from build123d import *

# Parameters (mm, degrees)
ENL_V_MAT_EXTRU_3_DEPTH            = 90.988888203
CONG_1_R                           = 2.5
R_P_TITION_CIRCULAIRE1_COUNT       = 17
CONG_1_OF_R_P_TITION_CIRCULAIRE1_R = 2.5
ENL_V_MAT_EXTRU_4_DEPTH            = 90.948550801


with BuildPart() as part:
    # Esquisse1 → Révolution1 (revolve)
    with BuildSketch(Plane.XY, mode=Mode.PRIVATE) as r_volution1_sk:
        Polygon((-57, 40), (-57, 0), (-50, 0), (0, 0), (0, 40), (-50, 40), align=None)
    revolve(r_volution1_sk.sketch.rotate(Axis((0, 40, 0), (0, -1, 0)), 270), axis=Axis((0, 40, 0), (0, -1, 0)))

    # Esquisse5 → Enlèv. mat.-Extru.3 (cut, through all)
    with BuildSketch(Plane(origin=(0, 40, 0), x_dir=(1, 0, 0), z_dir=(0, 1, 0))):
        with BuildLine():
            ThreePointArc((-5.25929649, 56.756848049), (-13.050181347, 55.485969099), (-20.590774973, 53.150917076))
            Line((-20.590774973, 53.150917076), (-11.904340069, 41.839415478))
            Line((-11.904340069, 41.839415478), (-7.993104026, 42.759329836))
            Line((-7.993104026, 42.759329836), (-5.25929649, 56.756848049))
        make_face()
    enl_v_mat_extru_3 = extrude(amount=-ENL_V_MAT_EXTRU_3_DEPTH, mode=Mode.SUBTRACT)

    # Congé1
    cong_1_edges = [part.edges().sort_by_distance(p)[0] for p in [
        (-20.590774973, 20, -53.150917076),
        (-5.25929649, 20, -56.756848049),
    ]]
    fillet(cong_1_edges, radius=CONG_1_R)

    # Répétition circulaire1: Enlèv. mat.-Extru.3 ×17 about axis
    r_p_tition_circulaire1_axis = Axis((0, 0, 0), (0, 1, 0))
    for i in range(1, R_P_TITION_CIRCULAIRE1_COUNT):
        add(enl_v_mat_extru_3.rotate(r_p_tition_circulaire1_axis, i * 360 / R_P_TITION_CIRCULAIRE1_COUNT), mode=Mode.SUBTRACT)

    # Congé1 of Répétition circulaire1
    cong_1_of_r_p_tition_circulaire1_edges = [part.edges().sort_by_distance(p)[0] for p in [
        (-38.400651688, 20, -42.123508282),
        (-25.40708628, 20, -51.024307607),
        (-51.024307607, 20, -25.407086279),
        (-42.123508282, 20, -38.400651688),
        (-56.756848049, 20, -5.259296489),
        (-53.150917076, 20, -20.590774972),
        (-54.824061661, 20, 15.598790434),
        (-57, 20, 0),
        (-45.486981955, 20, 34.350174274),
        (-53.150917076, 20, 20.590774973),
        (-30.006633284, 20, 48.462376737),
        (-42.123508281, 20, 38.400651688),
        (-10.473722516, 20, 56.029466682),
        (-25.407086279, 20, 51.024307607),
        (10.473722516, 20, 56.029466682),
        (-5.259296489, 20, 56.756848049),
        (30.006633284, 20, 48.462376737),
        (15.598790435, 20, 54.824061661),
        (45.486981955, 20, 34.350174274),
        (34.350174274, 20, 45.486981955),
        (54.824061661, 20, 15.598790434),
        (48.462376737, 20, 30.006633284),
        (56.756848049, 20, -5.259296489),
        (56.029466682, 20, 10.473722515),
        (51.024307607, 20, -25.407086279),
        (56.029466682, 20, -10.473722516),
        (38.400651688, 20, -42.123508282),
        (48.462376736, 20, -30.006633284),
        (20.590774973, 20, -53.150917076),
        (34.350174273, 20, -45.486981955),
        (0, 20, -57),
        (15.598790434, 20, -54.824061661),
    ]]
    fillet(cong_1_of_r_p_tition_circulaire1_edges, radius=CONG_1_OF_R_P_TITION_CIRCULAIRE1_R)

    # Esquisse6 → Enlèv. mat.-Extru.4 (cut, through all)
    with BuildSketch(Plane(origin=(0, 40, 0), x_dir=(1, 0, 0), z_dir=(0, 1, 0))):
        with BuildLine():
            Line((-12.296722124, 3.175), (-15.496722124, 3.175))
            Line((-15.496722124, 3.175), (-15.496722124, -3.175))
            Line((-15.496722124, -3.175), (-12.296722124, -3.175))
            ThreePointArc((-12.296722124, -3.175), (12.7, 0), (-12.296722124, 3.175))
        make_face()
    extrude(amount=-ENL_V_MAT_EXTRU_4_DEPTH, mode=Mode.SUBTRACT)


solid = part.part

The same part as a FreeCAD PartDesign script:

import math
import FreeCAD as App
import Part
import Sketcher

V = App.Vector


def edges_at(feature, points):
    """Names of the edges that pass closest to the given points."""
    edges = feature.Shape.Edges
    near = lambda p: min(range(len(edges)), key=lambda i: edges[i].distToShape(Part.Vertex(*p))[0])
    return sorted({f"Edge{near(p) + 1}" for p in points})


def add_polygon(sketch, points):
    """Adds a closed chain of lines whose ends are joined by coincident constraints."""
    first, n = sketch.GeometryCount, len(points)
    for a, b in zip(points, points[1:] + points[:1]):
        sketch.addGeometry(Part.LineSegment(App.Vector(*a, 0), App.Vector(*b, 0)), False)
    for i in range(n):
        sketch.addConstraint(Sketcher.Constraint("Coincident", first + i, 2, first + (i + 1) % n, 1))

doc = App.newDocument("Part")
params = doc.addObject("Spreadsheet::Sheet", "Params")
for row, (alias, value) in enumerate([
    ("sketch1_width", "57 mm"),
    ("sketch1_height", "40 mm"),
    ("revolution_angle", "360 deg"),
    ("sketch2_radius", "57 mm"),
    ("fillet_radius", "2.5 mm"),
    ("fillet2_radius", "2.5 mm"),
    ("sketch3_radius", "12.7 mm"),
    ("sketch3_width", "3.2 mm"),
    ("sketch3_height", "6.35 mm"),
], start=1):
    params.set(f"A{row}", alias)
    params.set(f"B{row}", "=" + value)
    params.setAlias(f"B{row}", alias)

body = doc.addObject("PartDesign::Body", "Body")

# Sketch on XY plane
sketch1 = body.newObject("Sketcher::SketchObject", "Sketch")
sketch1.AttachmentSupport = (doc.getObject("XY_Plane"), [""])
sketch1.MapMode = "FlatFace"
add_polygon(sketch1, [(-57, 40), (-57, 0), (0, 0), (0, 40)])  # lines 0-3
sketch1.addConstraint(Sketcher.Constraint("Vertical", 0))
sketch1.addConstraint(Sketcher.Constraint("Horizontal", 1))
sketch1.addConstraint(Sketcher.Constraint("Vertical", 2))
sketch1.addConstraint(Sketcher.Constraint("Horizontal", 3))
sketch1.addConstraint(Sketcher.Constraint("Coincident", 1, 2, -1, 1))
sketch1.addConstraint(Sketcher.Constraint("DistanceX", 1, 1, 1, 2, 57.0))
sketch1.addConstraint(Sketcher.Constraint("DistanceY", 0, 2, 0, 1, 40.0))
sketch1.setExpression("Constraints[9]", "Params.sketch1_width")
sketch1.setExpression("Constraints[10]", "Params.sketch1_height")
revolution = body.newObject("PartDesign::Revolution", "Revolution")
revolution.Profile = sketch1
revolution.ReferenceAxis = (sketch1, ["V_Axis"])
revolution.setExpression("Angle", "Params.revolution_angle")

# Sketch on XZ plane
sketch2 = body.newObject("Sketcher::SketchObject", "Sketch001")
sketch2.AttachmentSupport = (doc.getObject("XZ_Plane"), [""])
sketch2.MapMode = "FlatFace"
sketch2.AttachmentOffset = App.Placement(V(0, 0, -40), App.Rotation())
sketch2.addGeometry(Part.ArcOfCircle(Part.Circle(V(0, 0, 0), V(0, 0, 1), 57), math.radians(-111.18), math.radians(-95.29)), False)
sketch2.addGeometry(Part.LineSegment(V(-20.6, -53.2, 0), V(-11.9, -41.8, 0)), False)
sketch2.addGeometry(Part.LineSegment(V(-11.9, -41.8, 0), V(-8, -42.8, 0)), False)
sketch2.addGeometry(Part.LineSegment(V(-8, -42.8, 0), V(-5.3, -56.8, 0)), False)
sketch2.addConstraint(Sketcher.Constraint("Coincident", 0, 1, 1, 1))
sketch2.addConstraint(Sketcher.Constraint("Coincident", 1, 2, 2, 1))
sketch2.addConstraint(Sketcher.Constraint("Coincident", 2, 2, 3, 1))
sketch2.addConstraint(Sketcher.Constraint("Coincident", 3, 2, 0, 2))
sketch2.addConstraint(Sketcher.Constraint("Coincident", 0, 3, -1, 1))
sketch2.addConstraint(Sketcher.Constraint("Equal", 1, 3))
sketch2.addConstraint(Sketcher.Constraint("Radius", 0, 57.0))
sketch2.addConstraint(Sketcher.Constraint("DistanceY", 0, 1, 1, 2, 11.311502))
sketch2.addConstraint(Sketcher.Constraint("Distance", 2, 4.017961))
sketch2.addConstraint(Sketcher.Constraint("DistanceX", 1, 2, -1, 1, 11.90434))
sketch2.addConstraint(Sketcher.Constraint("DistanceY", 2, 2, -1, 1, 42.75933))
sketch2.addConstraint(Sketcher.Constraint("DistanceY", 3, 2, -1, 1, 56.756848))
sketch2.setExpression("Constraints[6]", "Params.sketch2_radius")
pocket1 = body.newObject("PartDesign::Pocket", "Pocket")
pocket1.Profile = sketch2
pocket1.Type = "ThroughAll"
pocket1.Reversed = True
doc.recompute()

fillet = body.newObject("PartDesign::Fillet", "Fillet")
fillet.Base = (pocket1, edges_at(pocket1, [(-20.591, 20, -53.151), (-5.259, 20, -56.757)]))
fillet.setExpression("Radius", "Params.fillet_radius")
doc.recompute()

polarpattern = body.newObject("PartDesign::PolarPattern", "PolarPattern")
polarpattern.Originals = [pocket1]
polarpattern.Axis = (doc.getObject("Y_Axis"), [""])
polarpattern.Angle = 360
polarpattern.Occurrences = 17
body.Tip = polarpattern
doc.recompute()

fillet2 = body.newObject("PartDesign::Fillet", "Fillet001")
fillet2.Base = (polarpattern, edges_at(polarpattern, [
    (-38.401, 20, -42.124),
    (-25.407, 20, -51.024),
    (-51.024, 20, -25.407),
    (-42.124, 20, -38.401),
    (-56.757, 20, -5.259),
    (-53.151, 20, -20.591),
    (-54.824, 20, 15.599),
    (-57, 20, 0),
    (-45.487, 20, 34.35),
    (-53.151, 20, 20.591),
    (-30.007, 20, 48.462),
    (-42.124, 20, 38.401),
    (-10.474, 20, 56.029),
    (-25.407, 20, 51.024),
    (10.474, 20, 56.029),
    (-5.259, 20, 56.757),
    (30.007, 20, 48.462),
    (15.599, 20, 54.824),
    (45.487, 20, 34.35),
    (34.35, 20, 45.487),
    (54.824, 20, 15.599),
    (48.462, 20, 30.007),
    (56.757, 20, -5.259),
    (56.029, 20, 10.474),
    (51.024, 20, -25.407),
    (56.029, 20, -10.474),
    (38.401, 20, -42.124),
    (48.462, 20, -30.007),
    (20.591, 20, -53.151),
    (34.35, 20, -45.487),
    (0, 20, -57),
    (15.599, 20, -54.824),
]))
fillet2.setExpression("Radius", "Params.fillet2_radius")

# Sketch on XZ plane
sketch3 = body.newObject("Sketcher::SketchObject", "Sketch002")
sketch3.AttachmentSupport = (doc.getObject("XZ_Plane"), [""])
sketch3.MapMode = "FlatFace"
sketch3.AttachmentOffset = App.Placement(V(0, 0, -40), App.Rotation())
sketch3.addGeometry(Part.LineSegment(V(-12.3, -3.2, 0), V(-15.5, -3.2, 0)), False)
sketch3.addGeometry(Part.LineSegment(V(-15.5, -3.2, 0), V(-15.5, 3.2, 0)), False)
sketch3.addGeometry(Part.LineSegment(V(-15.5, 3.2, 0), V(-12.3, 3.2, 0)), False)
sketch3.addGeometry(Part.ArcOfCircle(Part.Circle(V(0, 0, 0), V(0, 0, 1), 12.7), math.radians(-166), math.radians(166)), False)
sketch3.addConstraint(Sketcher.Constraint("Coincident", 0, 2, 1, 1))
sketch3.addConstraint(Sketcher.Constraint("Coincident", 1, 2, 2, 1))
sketch3.addConstraint(Sketcher.Constraint("Coincident", 2, 2, 3, 2))
sketch3.addConstraint(Sketcher.Constraint("Coincident", 3, 1, 0, 1))
sketch3.addConstraint(Sketcher.Constraint("Horizontal", 0))
sketch3.addConstraint(Sketcher.Constraint("Vertical", 1))
sketch3.addConstraint(Sketcher.Constraint("Horizontal", 2))
sketch3.addConstraint(Sketcher.Constraint("Coincident", 3, 3, -1, 1))
sketch3.addConstraint(Sketcher.Constraint("Vertical", 2, 2, 3, 1))
sketch3.addConstraint(Sketcher.Constraint("Radius", 3, 12.7))
sketch3.addConstraint(Sketcher.Constraint("DistanceX", 0, 2, 0, 1, 3.2))
sketch3.addConstraint(Sketcher.Constraint("DistanceY", 1, 1, 1, 2, 6.35))
sketch3.setExpression("Constraints[9]", "Params.sketch3_radius")
sketch3.setExpression("Constraints[10]", "Params.sketch3_width")
sketch3.setExpression("Constraints[11]", "Params.sketch3_height")
pocket2 = body.newObject("PartDesign::Pocket", "Pocket001")
pocket2.Profile = sketch3
pocket2.Type = "ThroughAll"
pocket2.Reversed = True

doc.recompute()
